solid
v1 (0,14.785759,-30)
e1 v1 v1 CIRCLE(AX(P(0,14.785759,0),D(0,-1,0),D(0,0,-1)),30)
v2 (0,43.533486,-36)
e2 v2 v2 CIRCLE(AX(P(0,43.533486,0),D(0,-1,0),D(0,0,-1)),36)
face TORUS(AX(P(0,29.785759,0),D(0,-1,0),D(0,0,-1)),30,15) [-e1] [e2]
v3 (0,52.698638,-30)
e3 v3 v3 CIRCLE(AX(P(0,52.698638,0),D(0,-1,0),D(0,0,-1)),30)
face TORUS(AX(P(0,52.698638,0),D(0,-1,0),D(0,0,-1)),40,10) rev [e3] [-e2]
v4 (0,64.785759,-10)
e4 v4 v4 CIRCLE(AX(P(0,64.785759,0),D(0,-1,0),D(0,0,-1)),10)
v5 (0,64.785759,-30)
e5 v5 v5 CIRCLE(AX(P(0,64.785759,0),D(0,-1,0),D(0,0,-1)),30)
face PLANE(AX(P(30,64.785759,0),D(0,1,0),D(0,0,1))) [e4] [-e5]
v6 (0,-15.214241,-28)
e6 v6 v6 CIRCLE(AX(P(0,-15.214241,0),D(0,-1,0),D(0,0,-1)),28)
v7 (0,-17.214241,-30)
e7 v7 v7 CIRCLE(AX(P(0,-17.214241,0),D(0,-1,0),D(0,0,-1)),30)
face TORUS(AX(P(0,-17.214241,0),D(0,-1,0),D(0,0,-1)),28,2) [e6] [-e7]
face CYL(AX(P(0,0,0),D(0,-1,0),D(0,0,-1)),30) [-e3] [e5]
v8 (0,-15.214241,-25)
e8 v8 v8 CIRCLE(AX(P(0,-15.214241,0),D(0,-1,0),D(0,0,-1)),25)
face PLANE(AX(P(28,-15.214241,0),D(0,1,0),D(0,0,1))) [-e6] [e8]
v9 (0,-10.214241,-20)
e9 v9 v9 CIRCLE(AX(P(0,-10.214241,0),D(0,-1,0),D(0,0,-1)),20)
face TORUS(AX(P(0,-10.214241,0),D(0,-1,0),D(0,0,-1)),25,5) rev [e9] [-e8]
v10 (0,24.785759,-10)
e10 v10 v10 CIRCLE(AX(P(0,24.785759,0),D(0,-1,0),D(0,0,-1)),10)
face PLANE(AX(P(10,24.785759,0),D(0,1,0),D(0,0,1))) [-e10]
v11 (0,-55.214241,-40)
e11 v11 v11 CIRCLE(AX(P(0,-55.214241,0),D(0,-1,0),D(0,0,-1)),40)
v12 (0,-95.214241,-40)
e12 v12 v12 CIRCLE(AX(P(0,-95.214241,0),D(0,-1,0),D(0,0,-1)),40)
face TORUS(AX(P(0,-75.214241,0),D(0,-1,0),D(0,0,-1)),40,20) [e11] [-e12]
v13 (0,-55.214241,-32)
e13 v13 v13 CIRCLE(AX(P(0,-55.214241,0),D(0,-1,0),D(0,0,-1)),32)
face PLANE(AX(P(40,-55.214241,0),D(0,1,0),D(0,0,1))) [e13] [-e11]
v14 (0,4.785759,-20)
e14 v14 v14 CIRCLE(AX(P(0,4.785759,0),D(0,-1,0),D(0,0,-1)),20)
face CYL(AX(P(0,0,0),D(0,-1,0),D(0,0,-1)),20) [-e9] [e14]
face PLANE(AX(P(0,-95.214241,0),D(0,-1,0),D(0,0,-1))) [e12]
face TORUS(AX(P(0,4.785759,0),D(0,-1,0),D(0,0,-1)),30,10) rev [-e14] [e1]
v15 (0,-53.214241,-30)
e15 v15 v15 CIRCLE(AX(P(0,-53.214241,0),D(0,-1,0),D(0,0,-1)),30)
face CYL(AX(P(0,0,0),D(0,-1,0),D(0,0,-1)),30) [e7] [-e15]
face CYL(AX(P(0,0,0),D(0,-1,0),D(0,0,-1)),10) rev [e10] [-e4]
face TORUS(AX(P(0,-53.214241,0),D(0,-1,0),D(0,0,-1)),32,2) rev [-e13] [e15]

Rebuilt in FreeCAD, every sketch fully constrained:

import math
import FreeCAD as App
import Part
import Sketcher

V = App.Vector

doc = App.newDocument("Part")
params = doc.addObject("Spreadsheet::Sheet", "Params")
for row, (alias, value) in enumerate([
    ("sketch1_radius", "20 mm"),
    ("sketch1_radius2", "2 mm"),
    ("sketch1_radius3", "5 mm"),
    ("sketch1_radius4", "10 mm"),
    ("sketch1_radius5", "15 mm"),
    ("revolution_angle", "360 deg"),
], start=1):
    params.set(f"A{row}", alias)
    params.set(f"B{row}", "=" + value)
    params.setAlias(f"B{row}", alias)

body = doc.addObject("PartDesign::Body", "Body")

# Sketch on XY plane
sketch1 = body.newObject("Sketcher::SketchObject", "Sketch")
sketch1.AttachmentSupport = (doc.getObject("XY_Plane"), [""])
sketch1.MapMode = "FlatFace"
sketch1.addGeometry([
    Part.LineSegment(V(0, -95.2, 0), V(40, -95.2, 0)),  # 0
    Part.ArcOfCircle(Part.Circle(V(40, -75.2, 0), V(0, 0, 1), 20), math.radians(-90), math.radians(90)),  # 1
    Part.LineSegment(V(40, -55.2, 0), V(32, -55.2, 0)),  # 2
    Part.ArcOfCircle(Part.Circle(V(32, -53.2, 0), V(0, 0, 1), 2), math.radians(-180), math.radians(-90)),  # 3
    Part.LineSegment(V(30, -53.2, 0), V(30, -17.2, 0)),  # 4
    Part.ArcOfCircle(Part.Circle(V(28, -17.2, 0), V(0, 0, 1), 2), math.radians(0), math.radians(90)),  # 5
    Part.LineSegment(V(28, -15.2, 0), V(25, -15.2, 0)),  # 6
    Part.ArcOfCircle(Part.Circle(V(25, -10.2, 0), V(0, 0, 1), 5), math.radians(180), math.radians(270)),  # 7
    Part.LineSegment(V(20, -10.2, 0), V(20, 4.8, 0)),  # 8
    Part.ArcOfCircle(Part.Circle(V(30, 4.8, 0), V(0, 0, 1), 10), math.radians(90), math.radians(180)),  # 9
    Part.ArcOfCircle(Part.Circle(V(30, 29.8, 0), V(0, 0, 1), 15), math.radians(-90), math.radians(66)),  # 10
    Part.ArcOfCircle(Part.Circle(V(40, 52.7, 0), V(0, 0, 1), 10), math.radians(-180), math.radians(-114)),  # 11
    Part.LineSegment(V(30, 52.7, 0), V(30, 64.8, 0)),  # 12
    Part.LineSegment(V(30, 64.8, 0), V(10, 64.8, 0)),  # 13
    Part.LineSegment(V(10, 64.8, 0), V(10, 24.8, 0)),  # 14
    Part.LineSegment(V(10, 24.8, 0), V(0, 24.8, 0)),  # 15
    Part.LineSegment(V(0, 24.8, 0), V(0, -95.2, 0)),  # 16
], False)
sketch1.addConstraint([
    Sketcher.Constraint("Tangent", 0, 2, 1, 1),
    Sketcher.Constraint("Tangent", 1, 2, 2, 1),
    Sketcher.Constraint("Tangent", 2, 2, 3, 2),
    Sketcher.Constraint("Tangent", 3, 1, 4, 1),
    Sketcher.Constraint("Tangent", 4, 2, 5, 1),
    Sketcher.Constraint("Tangent", 5, 2, 6, 1),
    Sketcher.Constraint("Tangent", 6, 2, 7, 2),
    Sketcher.Constraint("Tangent", 7, 1, 8, 1),
    Sketcher.Constraint("Tangent", 8, 2, 9, 2),
    Sketcher.Constraint("Tangent", 9, 1, 10, 1),
    Sketcher.Constraint("Tangent", 10, 2, 11, 2),
    Sketcher.Constraint("Tangent", 11, 1, 12, 1),
    Sketcher.Constraint("Coincident", 12, 2, 13, 1),
    Sketcher.Constraint("Coincident", 13, 2, 14, 1),
    Sketcher.Constraint("Coincident", 14, 2, 15, 1),
    Sketcher.Constraint("Coincident", 15, 2, 16, 1),
    Sketcher.Constraint("Coincident", 16, 2, 0, 1),
    Sketcher.Constraint("Horizontal", 0),
    Sketcher.Constraint("Horizontal", 2),
    Sketcher.Constraint("Vertical", 4),
    Sketcher.Constraint("Horizontal", 6),
    Sketcher.Constraint("Vertical", 8),
    Sketcher.Constraint("Vertical", 12),
    Sketcher.Constraint("Horizontal", 13),
    Sketcher.Constraint("Vertical", 14),
    Sketcher.Constraint("Horizontal", 15),
    Sketcher.Constraint("Vertical", 16),
    Sketcher.Constraint("Equal", 3, 5),
    Sketcher.Constraint("Equal", 9, 11),
    Sketcher.Constraint("PointOnObject", 15, 2, -2),
    Sketcher.Constraint("Vertical", 9, 3, 10, 3),
    Sketcher.Constraint("Vertical", 1, 3, 11, 3),
    Sketcher.Constraint("Vertical", 10, 3, 3, 1),
    Sketcher.Constraint("Vertical", 9, 1, 11, 1),
    Sketcher.Constraint("Equal", 0, 14),
    Sketcher.Constraint("Radius", 1, 20.0),
    Sketcher.Constraint("Radius", 3, 2.0),
    Sketcher.Constraint("Radius", 7, 5.0),
    Sketcher.Constraint("Radius", 9, 10.0),
    Sketcher.Constraint("Radius", 10, 15.0),
    Sketcher.Constraint("DistanceX", 0, 1, 0, 2, 40.0),
    Sketcher.Constraint("DistanceX", 13, 2, 13, 1, 20.0),
    Sketcher.Constraint("DistanceY", 4, 1, 4, 2, 36.0),
    Sketcher.Constraint("DistanceY", 8, 1, 8, 2, 15.0),
    Sketcher.Constraint("DistanceY", 16, 2, 16, 1, 120.0),
    Sketcher.Constraint("DistanceY", 1, 3, -1, 1, 75.214241),
])
sketch1.setExpression("Constraints[35]", "Params.sketch1_radius")
sketch1.setExpression("Constraints[36]", "Params.sketch1_radius2")
sketch1.setExpression("Constraints[37]", "Params.sketch1_radius3")
sketch1.setExpression("Constraints[38]", "Params.sketch1_radius4")
sketch1.setExpression("Constraints[39]", "Params.sketch1_radius5")
revolution = body.newObject("PartDesign::Revolution", "Revolution")
revolution.Profile = sketch1
revolution.ReferenceAxis = (sketch1, ["V_Axis"])
revolution.setExpression("Angle", "Params.revolution_angle")

doc.recompute()
